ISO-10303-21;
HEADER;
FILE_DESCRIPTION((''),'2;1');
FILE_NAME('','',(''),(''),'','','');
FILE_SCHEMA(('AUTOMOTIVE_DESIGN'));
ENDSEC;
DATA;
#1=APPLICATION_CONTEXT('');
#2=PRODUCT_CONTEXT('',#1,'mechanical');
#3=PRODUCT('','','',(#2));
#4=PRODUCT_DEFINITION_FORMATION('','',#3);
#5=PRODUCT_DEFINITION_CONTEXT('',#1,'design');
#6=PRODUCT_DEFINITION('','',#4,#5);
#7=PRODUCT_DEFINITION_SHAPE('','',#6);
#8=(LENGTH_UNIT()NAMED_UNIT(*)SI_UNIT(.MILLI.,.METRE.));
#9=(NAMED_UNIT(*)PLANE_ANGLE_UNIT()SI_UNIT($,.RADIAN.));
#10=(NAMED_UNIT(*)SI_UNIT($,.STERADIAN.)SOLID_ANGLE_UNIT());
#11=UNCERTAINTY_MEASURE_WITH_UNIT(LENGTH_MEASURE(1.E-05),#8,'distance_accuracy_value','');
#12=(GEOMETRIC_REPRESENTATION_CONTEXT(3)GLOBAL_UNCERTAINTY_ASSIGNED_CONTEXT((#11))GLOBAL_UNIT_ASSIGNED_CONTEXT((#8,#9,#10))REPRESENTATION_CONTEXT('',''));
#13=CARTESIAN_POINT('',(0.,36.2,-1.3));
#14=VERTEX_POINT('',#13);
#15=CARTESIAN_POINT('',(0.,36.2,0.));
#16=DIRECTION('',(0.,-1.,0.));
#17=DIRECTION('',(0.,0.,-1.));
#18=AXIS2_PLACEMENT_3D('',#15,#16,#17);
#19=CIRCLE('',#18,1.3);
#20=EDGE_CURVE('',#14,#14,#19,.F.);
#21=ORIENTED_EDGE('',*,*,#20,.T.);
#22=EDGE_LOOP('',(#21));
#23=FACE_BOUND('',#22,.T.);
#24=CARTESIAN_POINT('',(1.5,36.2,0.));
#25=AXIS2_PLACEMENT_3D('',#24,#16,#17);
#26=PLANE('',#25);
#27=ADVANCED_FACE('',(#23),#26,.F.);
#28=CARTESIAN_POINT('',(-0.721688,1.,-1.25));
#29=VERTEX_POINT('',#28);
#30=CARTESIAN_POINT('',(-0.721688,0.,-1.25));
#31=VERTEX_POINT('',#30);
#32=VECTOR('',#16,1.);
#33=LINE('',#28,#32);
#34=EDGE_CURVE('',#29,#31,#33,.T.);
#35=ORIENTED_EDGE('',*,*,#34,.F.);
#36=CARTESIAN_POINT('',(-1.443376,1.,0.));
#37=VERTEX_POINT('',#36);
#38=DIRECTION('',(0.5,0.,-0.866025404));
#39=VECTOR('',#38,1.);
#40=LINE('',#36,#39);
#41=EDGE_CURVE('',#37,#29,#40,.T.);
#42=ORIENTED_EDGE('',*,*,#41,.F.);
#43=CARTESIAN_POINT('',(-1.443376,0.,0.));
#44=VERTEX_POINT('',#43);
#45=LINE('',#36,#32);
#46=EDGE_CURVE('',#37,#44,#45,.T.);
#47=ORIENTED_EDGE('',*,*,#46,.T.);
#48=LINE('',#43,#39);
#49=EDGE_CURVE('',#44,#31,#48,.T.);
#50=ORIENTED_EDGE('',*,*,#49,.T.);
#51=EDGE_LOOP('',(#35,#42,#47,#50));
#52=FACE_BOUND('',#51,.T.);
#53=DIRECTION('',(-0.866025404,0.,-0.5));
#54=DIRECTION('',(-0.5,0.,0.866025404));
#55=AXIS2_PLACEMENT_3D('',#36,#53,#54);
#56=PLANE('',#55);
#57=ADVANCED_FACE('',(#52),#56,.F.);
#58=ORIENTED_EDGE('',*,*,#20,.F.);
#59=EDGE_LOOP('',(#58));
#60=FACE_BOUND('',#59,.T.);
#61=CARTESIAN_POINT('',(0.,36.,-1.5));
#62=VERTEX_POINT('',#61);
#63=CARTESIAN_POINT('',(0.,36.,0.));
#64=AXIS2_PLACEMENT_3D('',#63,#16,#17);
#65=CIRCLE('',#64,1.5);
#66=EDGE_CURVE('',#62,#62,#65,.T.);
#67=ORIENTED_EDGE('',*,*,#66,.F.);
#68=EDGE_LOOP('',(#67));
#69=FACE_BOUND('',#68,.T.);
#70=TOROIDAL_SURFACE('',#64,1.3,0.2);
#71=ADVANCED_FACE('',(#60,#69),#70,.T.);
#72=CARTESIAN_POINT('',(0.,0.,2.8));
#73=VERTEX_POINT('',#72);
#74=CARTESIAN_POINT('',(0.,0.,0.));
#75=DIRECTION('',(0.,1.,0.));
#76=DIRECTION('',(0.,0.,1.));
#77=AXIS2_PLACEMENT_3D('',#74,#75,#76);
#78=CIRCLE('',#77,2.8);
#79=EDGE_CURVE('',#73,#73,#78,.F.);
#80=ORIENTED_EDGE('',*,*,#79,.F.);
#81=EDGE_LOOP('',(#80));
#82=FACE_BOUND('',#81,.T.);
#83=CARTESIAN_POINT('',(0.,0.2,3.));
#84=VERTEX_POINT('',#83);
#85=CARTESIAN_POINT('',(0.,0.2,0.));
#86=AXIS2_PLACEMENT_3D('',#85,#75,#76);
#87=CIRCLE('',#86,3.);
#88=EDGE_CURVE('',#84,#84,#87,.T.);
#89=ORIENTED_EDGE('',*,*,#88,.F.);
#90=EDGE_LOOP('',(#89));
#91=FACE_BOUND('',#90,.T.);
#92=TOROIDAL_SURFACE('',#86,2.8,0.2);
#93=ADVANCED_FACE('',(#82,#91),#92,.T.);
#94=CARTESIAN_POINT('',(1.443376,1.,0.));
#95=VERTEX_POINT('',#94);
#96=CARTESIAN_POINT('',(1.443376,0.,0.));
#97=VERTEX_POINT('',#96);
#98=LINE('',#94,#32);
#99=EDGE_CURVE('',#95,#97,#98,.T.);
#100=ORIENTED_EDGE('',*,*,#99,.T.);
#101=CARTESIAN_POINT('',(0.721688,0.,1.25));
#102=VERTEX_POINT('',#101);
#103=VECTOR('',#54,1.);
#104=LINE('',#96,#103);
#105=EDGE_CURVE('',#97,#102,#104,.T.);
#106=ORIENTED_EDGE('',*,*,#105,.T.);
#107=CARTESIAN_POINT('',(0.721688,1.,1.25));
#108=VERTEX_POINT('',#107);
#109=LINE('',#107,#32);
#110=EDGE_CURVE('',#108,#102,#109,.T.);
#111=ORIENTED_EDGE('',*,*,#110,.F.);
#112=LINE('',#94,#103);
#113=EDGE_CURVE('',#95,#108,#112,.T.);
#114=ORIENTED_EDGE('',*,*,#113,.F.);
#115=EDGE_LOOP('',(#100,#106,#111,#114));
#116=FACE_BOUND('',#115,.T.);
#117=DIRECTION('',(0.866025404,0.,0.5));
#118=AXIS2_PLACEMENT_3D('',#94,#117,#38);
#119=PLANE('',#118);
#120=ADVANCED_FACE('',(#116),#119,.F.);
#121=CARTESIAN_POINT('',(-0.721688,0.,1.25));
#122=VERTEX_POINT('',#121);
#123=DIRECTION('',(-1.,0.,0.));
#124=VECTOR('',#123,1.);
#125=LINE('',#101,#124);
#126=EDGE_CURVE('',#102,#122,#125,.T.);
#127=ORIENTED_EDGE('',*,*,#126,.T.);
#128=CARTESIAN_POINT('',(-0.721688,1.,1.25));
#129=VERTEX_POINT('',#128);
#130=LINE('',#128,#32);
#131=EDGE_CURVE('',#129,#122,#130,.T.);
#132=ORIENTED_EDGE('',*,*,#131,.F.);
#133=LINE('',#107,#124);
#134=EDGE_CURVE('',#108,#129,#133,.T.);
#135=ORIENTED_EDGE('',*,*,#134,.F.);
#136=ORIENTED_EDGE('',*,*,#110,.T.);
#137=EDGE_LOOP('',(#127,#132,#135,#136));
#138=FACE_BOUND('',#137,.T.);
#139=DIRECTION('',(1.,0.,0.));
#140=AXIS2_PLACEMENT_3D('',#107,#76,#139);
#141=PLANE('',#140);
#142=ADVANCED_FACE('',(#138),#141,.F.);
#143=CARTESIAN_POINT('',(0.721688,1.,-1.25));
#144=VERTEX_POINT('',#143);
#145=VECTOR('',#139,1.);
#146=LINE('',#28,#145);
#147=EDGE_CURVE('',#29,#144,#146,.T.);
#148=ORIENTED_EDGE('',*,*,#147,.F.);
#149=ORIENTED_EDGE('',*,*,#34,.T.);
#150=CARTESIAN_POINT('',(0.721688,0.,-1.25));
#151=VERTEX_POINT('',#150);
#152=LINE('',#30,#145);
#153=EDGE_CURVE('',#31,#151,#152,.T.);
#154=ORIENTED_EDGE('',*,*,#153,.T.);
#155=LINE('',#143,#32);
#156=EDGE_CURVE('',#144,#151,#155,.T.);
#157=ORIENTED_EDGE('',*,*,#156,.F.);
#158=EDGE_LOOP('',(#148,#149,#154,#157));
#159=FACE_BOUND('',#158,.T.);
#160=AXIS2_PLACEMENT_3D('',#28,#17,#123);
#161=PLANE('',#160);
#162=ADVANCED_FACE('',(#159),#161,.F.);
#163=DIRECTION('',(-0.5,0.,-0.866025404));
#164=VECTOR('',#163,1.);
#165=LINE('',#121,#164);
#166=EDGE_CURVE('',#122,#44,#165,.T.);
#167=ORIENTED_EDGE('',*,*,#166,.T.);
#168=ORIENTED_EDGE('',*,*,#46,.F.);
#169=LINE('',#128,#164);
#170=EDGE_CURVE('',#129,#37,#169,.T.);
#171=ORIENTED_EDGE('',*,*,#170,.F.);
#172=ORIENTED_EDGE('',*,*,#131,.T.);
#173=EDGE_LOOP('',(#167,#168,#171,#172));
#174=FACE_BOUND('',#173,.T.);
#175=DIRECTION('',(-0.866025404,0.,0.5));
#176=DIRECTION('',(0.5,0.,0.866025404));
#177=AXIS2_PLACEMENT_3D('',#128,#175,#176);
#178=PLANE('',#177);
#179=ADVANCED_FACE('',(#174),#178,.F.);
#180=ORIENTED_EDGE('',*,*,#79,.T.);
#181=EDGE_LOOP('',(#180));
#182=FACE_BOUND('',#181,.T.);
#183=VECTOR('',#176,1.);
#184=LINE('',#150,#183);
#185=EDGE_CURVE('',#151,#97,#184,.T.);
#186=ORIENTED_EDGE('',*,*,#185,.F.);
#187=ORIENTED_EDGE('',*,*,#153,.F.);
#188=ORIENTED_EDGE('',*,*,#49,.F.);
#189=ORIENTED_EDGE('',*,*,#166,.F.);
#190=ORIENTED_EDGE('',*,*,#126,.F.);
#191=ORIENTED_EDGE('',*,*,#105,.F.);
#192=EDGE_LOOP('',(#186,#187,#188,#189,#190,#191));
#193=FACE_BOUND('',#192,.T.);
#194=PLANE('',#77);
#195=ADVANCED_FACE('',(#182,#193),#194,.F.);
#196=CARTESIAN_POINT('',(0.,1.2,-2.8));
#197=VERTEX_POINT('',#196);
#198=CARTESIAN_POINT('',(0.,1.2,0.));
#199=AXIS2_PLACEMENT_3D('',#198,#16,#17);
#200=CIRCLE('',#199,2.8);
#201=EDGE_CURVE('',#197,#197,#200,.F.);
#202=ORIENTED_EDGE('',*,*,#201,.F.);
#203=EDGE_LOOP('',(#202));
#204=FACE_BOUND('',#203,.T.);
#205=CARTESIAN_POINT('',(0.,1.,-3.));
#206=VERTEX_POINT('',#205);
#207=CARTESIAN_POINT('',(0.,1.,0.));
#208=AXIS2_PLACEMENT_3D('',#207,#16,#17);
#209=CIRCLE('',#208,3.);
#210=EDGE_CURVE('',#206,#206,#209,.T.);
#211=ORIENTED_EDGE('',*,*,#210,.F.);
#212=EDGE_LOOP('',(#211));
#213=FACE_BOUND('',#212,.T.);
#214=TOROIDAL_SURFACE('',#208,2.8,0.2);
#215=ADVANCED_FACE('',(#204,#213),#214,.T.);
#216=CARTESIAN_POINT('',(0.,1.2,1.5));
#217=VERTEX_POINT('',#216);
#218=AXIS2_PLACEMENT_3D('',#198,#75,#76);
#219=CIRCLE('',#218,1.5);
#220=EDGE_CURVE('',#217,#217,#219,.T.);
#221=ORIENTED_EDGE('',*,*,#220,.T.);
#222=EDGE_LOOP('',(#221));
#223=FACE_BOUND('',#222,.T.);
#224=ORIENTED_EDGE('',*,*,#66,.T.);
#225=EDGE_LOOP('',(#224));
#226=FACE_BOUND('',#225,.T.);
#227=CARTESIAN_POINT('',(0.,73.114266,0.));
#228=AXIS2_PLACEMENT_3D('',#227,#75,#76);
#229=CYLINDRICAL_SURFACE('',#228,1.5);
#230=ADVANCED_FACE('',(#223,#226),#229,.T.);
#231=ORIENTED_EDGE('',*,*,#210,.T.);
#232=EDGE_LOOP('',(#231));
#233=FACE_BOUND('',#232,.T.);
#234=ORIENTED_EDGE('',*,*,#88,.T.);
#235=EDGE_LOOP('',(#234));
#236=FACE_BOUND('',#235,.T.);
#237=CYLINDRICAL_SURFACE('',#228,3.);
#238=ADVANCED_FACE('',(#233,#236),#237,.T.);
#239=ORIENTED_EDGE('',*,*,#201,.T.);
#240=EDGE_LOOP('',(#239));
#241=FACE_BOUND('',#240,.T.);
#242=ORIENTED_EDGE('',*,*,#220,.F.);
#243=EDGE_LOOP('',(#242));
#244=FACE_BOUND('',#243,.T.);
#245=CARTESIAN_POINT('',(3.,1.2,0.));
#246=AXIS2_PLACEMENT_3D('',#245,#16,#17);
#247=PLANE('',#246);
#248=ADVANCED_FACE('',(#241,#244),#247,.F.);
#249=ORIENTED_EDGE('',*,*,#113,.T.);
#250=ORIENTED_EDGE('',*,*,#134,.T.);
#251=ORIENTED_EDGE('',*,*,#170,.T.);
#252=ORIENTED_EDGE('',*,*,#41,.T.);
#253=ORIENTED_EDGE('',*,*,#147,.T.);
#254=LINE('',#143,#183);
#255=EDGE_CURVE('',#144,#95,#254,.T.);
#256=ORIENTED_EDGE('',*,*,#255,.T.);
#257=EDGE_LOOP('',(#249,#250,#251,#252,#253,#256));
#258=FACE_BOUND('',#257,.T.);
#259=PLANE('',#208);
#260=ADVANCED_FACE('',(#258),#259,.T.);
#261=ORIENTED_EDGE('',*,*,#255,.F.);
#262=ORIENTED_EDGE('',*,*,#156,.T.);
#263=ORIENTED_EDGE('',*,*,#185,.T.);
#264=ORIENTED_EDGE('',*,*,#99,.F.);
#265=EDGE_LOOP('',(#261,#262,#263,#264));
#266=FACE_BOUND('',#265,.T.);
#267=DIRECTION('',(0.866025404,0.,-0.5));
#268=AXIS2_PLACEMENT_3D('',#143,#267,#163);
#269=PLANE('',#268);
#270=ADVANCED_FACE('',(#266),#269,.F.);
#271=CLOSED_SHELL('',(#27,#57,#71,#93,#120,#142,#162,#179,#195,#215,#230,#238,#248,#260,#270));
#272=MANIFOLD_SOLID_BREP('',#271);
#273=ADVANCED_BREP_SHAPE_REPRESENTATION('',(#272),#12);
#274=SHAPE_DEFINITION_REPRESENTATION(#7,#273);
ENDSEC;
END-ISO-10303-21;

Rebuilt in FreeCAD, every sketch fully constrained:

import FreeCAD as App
import Part
import Sketcher
Q = App.Units.Quantity


def edges_at(feature, points):
    """Names of the edges that pass closest to the given points."""
    edges = feature.Shape.Edges
    near = lambda p: min(range(len(edges)), key=lambda i: edges[i].distToShape(Part.Vertex(*p))[0])
    return sorted({f"Edge{near(p) + 1}" for p in points})


def add_polygon(sketch, points):
    """Adds a closed chain of lines whose ends are joined by coincident constraints."""
    first, n = sketch.GeometryCount, len(points)
    for a, b in zip(points, points[1:] + points[:1]):
        sketch.addGeometry(Part.LineSegment(App.Vector(*a, 0), App.Vector(*b, 0)), False)
    for i in range(n):
        sketch.addConstraint(Sketcher.Constraint("Coincident", first + i, 2, first + (i + 1) % n, 1))

doc = App.newDocument("Part")
body = doc.addObject("PartDesign::Body", "Body")

# Sketch on XY plane
sketch1 = doc.addObject("Sketcher::SketchObject", "Sketch")
body.addObject(sketch1)
sketch1.AttachmentSupport = (doc.XY_Plane, [""])
sketch1.MapMode = "FlatFace"
add_polygon(sketch1, [(0, 0), (3, 0), (3, 1.2), (1.5, 1.2), (1.5, 36.2), (0, 36.2)])  # lines 0-5
sketch1.addConstraint(Sketcher.Constraint("Horizontal", 0))
sketch1.addConstraint(Sketcher.Constraint("Vertical", 1))
sketch1.addConstraint(Sketcher.Constraint("Horizontal", 2))
sketch1.addConstraint(Sketcher.Constraint("Vertical", 3))
sketch1.addConstraint(Sketcher.Constraint("Horizontal", 4))
sketch1.addConstraint(Sketcher.Constraint("Vertical", 5))
sketch1.addConstraint(Sketcher.Constraint("Coincident", 5, 2, -1, 1))
sketch1.addConstraint(Sketcher.Constraint("Equal", 2, 4))
sketch1.addConstraint(Sketcher.Constraint("DistanceX", 0, 1, 0, 2, 3.0))
sketch1.addConstraint(Sketcher.Constraint("DistanceY", 3, 1, 3, 2, 35.0))
sketch1.addConstraint(Sketcher.Constraint("DistanceY", 1, 1, 1, 2, 1.2))
revolution = doc.addObject("PartDesign::Revolution", "Revolution")
body.addObject(revolution)
revolution.Profile = sketch1
revolution.ReferenceAxis = (sketch1, ["V_Axis"])
revolution.Angle = 360
doc.recompute()

fillet = doc.addObject("PartDesign::Fillet", "Fillet")
body.addObject(fillet)
fillet.Base = (revolution, edges_at(revolution, [(0, 36.2, -1.5), (0, 1.2, -3), (0, 0, -3)]))
fillet.Radius = 0.2

# Sketch on XZ plane
sketch2 = doc.addObject("Sketcher::SketchObject", "Sketch001")
body.addObject(sketch2)
sketch2.AttachmentSupport = (doc.XZ_Plane, [""])
sketch2.MapMode = "FlatFace"
add_polygon(sketch2, [(1.4, 0), (0.7, 1.2), (-0.7, 1.2), (-1.4, 0), (-0.7, -1.2), (0.7, -1.2)])  # lines 0-5
sketch2.addConstraint(Sketcher.Constraint("Horizontal", 1))
sketch2.addConstraint(Sketcher.Constraint("Horizontal", 4))
sketch2.addConstraint(Sketcher.Constraint("Symmetric", 0, 2, 3, 2, -1, 1))
sketch2.addConstraint(Sketcher.Constraint("Symmetric", 2, 2, 5, 2, -1, 1))
sketch2.addConstraint(Sketcher.Constraint("PointOnObject", 2, 2, -1))
sketch2.addConstraint(Sketcher.Constraint("Parallel", 2, 5))
sketch2.addConstraint(Sketcher.Constraint("Vertical", 1, 2, 3, 2))
sketch2.addConstraint(Sketcher.Constraint("Angle", 0, Q("120 deg")))
sketch2.addConstraint(Sketcher.Constraint("DistanceY", 3, 2, 1, 2, 2.5))
sketch2.addConstraint(Sketcher.Constraint("DistanceX", 1, 2, 1, 1, 1.443376))
pocket1 = doc.addObject("PartDesign::Pocket", "Pocket")
body.addObject(pocket1)
pocket1.Profile = sketch2
pocket1.Length = 1

doc.recompute()
